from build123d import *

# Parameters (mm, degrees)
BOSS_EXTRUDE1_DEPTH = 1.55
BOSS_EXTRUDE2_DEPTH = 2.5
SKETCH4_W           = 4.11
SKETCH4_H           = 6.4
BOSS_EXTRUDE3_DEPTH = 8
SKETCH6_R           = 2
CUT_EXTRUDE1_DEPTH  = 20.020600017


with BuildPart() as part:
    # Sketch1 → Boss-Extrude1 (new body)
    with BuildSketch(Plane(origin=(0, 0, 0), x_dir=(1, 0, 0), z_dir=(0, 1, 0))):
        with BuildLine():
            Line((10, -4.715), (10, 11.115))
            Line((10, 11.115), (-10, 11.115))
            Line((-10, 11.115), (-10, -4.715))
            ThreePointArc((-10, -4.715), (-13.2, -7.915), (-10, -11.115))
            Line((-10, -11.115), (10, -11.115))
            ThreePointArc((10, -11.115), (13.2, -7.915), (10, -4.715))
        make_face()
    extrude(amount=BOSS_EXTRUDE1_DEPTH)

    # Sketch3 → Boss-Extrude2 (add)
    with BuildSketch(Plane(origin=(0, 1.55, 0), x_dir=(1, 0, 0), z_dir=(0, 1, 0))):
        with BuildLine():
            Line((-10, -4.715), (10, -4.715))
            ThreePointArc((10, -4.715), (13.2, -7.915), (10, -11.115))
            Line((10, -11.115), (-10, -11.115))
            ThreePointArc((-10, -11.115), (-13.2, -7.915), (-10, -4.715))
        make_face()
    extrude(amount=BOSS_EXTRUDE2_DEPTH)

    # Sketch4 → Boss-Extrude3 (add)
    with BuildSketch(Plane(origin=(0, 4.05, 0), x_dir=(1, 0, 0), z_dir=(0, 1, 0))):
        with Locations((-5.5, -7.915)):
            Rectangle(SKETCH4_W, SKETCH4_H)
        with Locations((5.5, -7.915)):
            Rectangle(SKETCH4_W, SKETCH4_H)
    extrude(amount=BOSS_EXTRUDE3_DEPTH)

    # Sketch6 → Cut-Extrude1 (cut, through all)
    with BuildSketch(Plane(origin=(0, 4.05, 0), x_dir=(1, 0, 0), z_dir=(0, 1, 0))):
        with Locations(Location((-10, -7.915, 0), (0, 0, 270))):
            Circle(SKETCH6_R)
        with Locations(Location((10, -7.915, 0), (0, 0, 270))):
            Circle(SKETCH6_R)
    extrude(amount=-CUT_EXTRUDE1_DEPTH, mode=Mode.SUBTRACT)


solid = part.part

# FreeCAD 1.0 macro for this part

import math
import FreeCAD as App
import Part
import Sketcher

V = App.Vector

doc = App.newDocument("Part")
body = doc.addObject("PartDesign::Body", "Body")

sketch1 = body.newObject("Sketcher::SketchObject", "Sketch")
sketch1.AttachmentSupport = (doc.getObject("XZ_Plane"), [""])
sketch1.MapMode = "FlatFace"
sketch1.addGeometry([
    Part.LineSegment(V(10, 4.7, 0), V(10, -11.1, 0)),
    Part.LineSegment(V(10, -11.1, 0), V(-10, -11.1, 0)),
    Part.LineSegment(V(-10, -11.1, 0), V(-10, 4.7, 0)),
    Part.ArcOfCircle(Part.Circle(V(-10, 7.9, 0), V(0, 0, 1), 3.2), math.radians(90), math.radians(270)),
    Part.LineSegment(V(-10, 11.1, 0), V(10, 11.1, 0)),
    Part.ArcOfCircle(Part.Circle(V(10, 7.9, 0), V(0, 0, 1), 3.2), math.radians(-90), math.radians(90)),
], False)
sketch1.addConstraint([
    Sketcher.Constraint("Coincident", 0, 2, 1, 1),
    Sketcher.Constraint("Coincident", 1, 2, 2, 1),
    Sketcher.Constraint("Coincident", 2, 2, 3, 2),
    Sketcher.Constraint("Tangent", 3, 1, 4, 1),
    Sketcher.Constraint("Tangent", 4, 2, 5, 2),
    Sketcher.Constraint("Coincident", 5, 1, 0, 1),
    Sketcher.Constraint("Vertical", 0),
    Sketcher.Constraint("Horizontal", 1),
    Sketcher.Constraint("Vertical", 2),
    Sketcher.Constraint("Horizontal", 4),
    Sketcher.Constraint("Equal", 3, 5),
    Sketcher.Constraint("Symmetric", 0, 2, 3, 1, -1, 1),
    Sketcher.Constraint("Vertical", 5, 3, 0, 2),
    Sketcher.Constraint("Vertical", 3, 3, 1, 2),
    Sketcher.Constraint("Radius", 3, 3.2),
    Sketcher.Constraint("DistanceX", 1, 2, 1, 1, 20.0),
    Sketcher.Constraint("DistanceY", 0, 2, 0, 1, 15.83),
])
pad1 = body.newObject("PartDesign::Pad", "Pad")
pad1.Profile = sketch1
pad1.Length = 1.55
pad1.Reversed = True

sketch2 = body.newObject("Sketcher::SketchObject", "Sketch001")
sketch2.AttachmentSupport = (doc.getObject("XZ_Plane"), [""])
sketch2.MapMode = "FlatFace"
sketch2.AttachmentOffset = App.Placement(V(0, 0, -1.55), App.Rotation())
sketch2.addGeometry([
    Part.LineSegment(V(10, 4.7, 0), V(-10, 4.7, 0)),
    Part.ArcOfCircle(Part.Circle(V(-10, 7.9, 0), V(0, 0, 1), 3.2), math.radians(90), math.radians(270)),
    Part.LineSegment(V(-10, 11.1, 0), V(10, 11.1, 0)),
    Part.ArcOfCircle(Part.Circle(V(10, 7.9, 0), V(0, 0, 1), 3.2), math.radians(-90), math.radians(90)),
], False)
sketch2.addConstraint([
    Sketcher.Constraint("Tangent", 0, 2, 1, 2),
    Sketcher.Constraint("Tangent", 1, 1, 2, 1),
    Sketcher.Constraint("Tangent", 2, 2, 3, 2),
    Sketcher.Constraint("Tangent", 3, 1, 0, 1),
    Sketcher.Constraint("Horizontal", 0),
    Sketcher.Constraint("Horizontal", 2),
    Sketcher.Constraint("Radius", 1, 3.2),
    Sketcher.Constraint("DistanceX", 0, 2, 0, 1, 20.0),
    Sketcher.Constraint("DistanceX", 1, 3, -1, 1, 10.0),
    Sketcher.Constraint("DistanceY", -1, 1, 1, 3, 7.915),
])
pad2 = body.newObject("PartDesign::Pad", "Pad001")
pad2.Profile = sketch2
pad2.Length = 2.5
pad2.Reversed = True

sketch3 = body.newObject("Sketcher::SketchObject", "Sketch002")
sketch3.AttachmentSupport = (doc.getObject("XZ_Plane"), [""])
sketch3.MapMode = "FlatFace"
sketch3.AttachmentOffset = App.Placement(V(0, 0, -4.05), App.Rotation())
sketch3.addGeometry([
    Part.LineSegment(V(-7.6, 4.7, 0), V(-7.6, 11.1, 0)),
    Part.LineSegment(V(-7.6, 11.1, 0), V(-3.4, 11.1, 0)),
    Part.LineSegment(V(-3.4, 11.1, 0), V(-3.4, 4.7, 0)),
    Part.LineSegment(V(-3.4, 4.7, 0), V(-7.6, 4.7, 0)),
    Part.LineSegment(V(3.4, 4.7, 0), V(3.4, 11.1, 0)),
    Part.LineSegment(V(3.4, 11.1, 0), V(7.6, 11.1, 0)),
    Part.LineSegment(V(7.6, 11.1, 0), V(7.6, 4.7, 0)),
    Part.LineSegment(V(7.6, 4.7, 0), V(3.4, 4.7, 0)),
], False)
sketch3.addConstraint([
    Sketcher.Constraint("Coincident", 0, 2, 1, 1),
    Sketcher.Constraint("Coincident", 1, 2, 2, 1),
    Sketcher.Constraint("Coincident", 2, 2, 3, 1),
    Sketcher.Constraint("Coincident", 3, 2, 0, 1),
    Sketcher.Constraint("Coincident", 4, 2, 5, 1),
    Sketcher.Constraint("Coincident", 5, 2, 6, 1),
    Sketcher.Constraint("Coincident", 6, 2, 7, 1),
    Sketcher.Constraint("Coincident", 7, 2, 4, 1),
    Sketcher.Constraint("Vertical", 0),
    Sketcher.Constraint("Horizontal", 1),
    Sketcher.Constraint("Vertical", 2),
    Sketcher.Constraint("Horizontal", 3),
    Sketcher.Constraint("Vertical", 4),
    Sketcher.Constraint("Horizontal", 5),
    Sketcher.Constraint("Vertical", 6),
    Sketcher.Constraint("Horizontal", 7),
    Sketcher.Constraint("Symmetric", 1, 2, 4, 2, -2),
    Sketcher.Constraint("Symmetric", 3, 2, 6, 2, -2),
    Sketcher.Constraint("DistanceY", 0, 1, 0, 2, 6.4),
    Sketcher.Constraint("DistanceX", 0, 2, 4, 2, 11.0),
    Sketcher.Constraint("DistanceX", 1, 1, 1, 2, 4.11),
    Sketcher.Constraint("DistanceY", -1, 1, 0, 2, 11.115),
])
pad3 = body.newObject("PartDesign::Pad", "Pad002")
pad3.Profile = sketch3
pad3.Length = 8
pad3.Reversed = True

sketch4 = body.newObject("Sketcher::SketchObject", "Sketch003")
sketch4.AttachmentSupport = (doc.getObject("XZ_Plane"), [""])
sketch4.MapMode = "FlatFace"
sketch4.AttachmentOffset = App.Placement(V(0, 0, -4.05), App.Rotation())
sketch4.addGeometry([
    Part.Circle(V(-10, 7.9, 0), V(0, 0, 1), 2),
    Part.Circle(V(10, 7.9, 0), V(0, 0, 1), 2),
], False)
sketch4.addConstraint([
    Sketcher.Constraint("Equal", 0, 1),
    Sketcher.Constraint("Symmetric", 0, 3, 1, 3, -2),
    Sketcher.Constraint("Diameter", 0, 4.0),
    Sketcher.Constraint("DistanceX", 0, 3, -1, 1, 10.0),
    Sketcher.Constraint("DistanceY", -1, 1, 0, 3, 7.915),
])
pocket1 = body.newObject("PartDesign::Pocket", "Pocket")
pocket1.Profile = sketch4
pocket1.Type = "ThroughAll"
pocket1.Reversed = True

doc.recompute()
